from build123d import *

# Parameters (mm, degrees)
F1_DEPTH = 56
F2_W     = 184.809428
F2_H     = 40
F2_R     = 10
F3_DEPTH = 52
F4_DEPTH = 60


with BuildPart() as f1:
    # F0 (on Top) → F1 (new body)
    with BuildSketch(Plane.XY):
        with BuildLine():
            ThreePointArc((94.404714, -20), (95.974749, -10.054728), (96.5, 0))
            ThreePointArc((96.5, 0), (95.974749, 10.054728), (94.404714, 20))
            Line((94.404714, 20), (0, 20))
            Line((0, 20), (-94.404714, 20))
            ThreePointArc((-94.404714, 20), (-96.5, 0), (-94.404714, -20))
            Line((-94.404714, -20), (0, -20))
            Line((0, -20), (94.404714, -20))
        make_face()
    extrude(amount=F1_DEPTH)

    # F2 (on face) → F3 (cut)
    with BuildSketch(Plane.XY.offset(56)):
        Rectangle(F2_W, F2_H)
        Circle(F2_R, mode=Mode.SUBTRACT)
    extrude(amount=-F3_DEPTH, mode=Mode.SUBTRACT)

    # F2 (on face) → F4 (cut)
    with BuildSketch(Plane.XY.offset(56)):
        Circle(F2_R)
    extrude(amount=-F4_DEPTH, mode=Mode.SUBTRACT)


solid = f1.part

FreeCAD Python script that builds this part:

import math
import FreeCAD as App
import Part
import Sketcher
from FreeCAD import Vector
Q = App.Units.Quantity


def add_polygon(sketch, points):
    """Adds a closed chain of lines whose ends are joined by coincident constraints."""
    first, n = sketch.GeometryCount, len(points)
    for a, b in zip(points, points[1:] + points[:1]):
        sketch.addGeometry(Part.LineSegment(App.Vector(*a, 0), App.Vector(*b, 0)), False)
    for i in range(n):
        sketch.addConstraint(Sketcher.Constraint("Coincident", first + i, 2, first + (i + 1) % n, 1))

doc = App.newDocument("Part")
body = doc.addObject("PartDesign::Body", "Body")

# Sketch on XY plane
sketch1 = doc.addObject("Sketcher::SketchObject", "Sketch")
body.addObject(sketch1)
sketch1.AttachmentSupport = (doc.XY_Plane, [""])
sketch1.MapMode = "FlatFace"
sketch1.addGeometry(Part.ArcOfCircle(Part.Circle(Vector(-0.000011, 0.000001, 0), Vector(0, 0, 1), 96.500011), math.radians(-11.96147), math.radians(0)), False)
sketch1.addGeometry(Part.ArcOfCircle(Part.Circle(Vector(-0.000011, -0.000001, 0), Vector(0, 0, 1), 96.500011), math.radians(0), math.radians(11.96147)), False)
sketch1.addGeometry(Part.LineSegment(Vector(94.404714, 20, 0), Vector(-94.404714, 20, 0)), False)
sketch1.addGeometry(Part.ArcOfCircle(Part.Circle(Vector(0.000006, 0, 0), Vector(0, 0, 1), 96.500006), math.radians(168.038529), math.radians(191.961471)), False)
sketch1.addGeometry(Part.LineSegment(Vector(-94.404714, -20, 0), Vector(94.404714, -20, 0)), False)
sketch1.addConstraint(Sketcher.Constraint("Coincident", 0, 2, 1, 1))
sketch1.addConstraint(Sketcher.Constraint("Coincident", 1, 2, 2, 1))
sketch1.addConstraint(Sketcher.Constraint("Coincident", 2, 2, 3, 1))
sketch1.addConstraint(Sketcher.Constraint("Coincident", 3, 2, 4, 1))
sketch1.addConstraint(Sketcher.Constraint("Coincident", 4, 2, 0, 1))
sketch1.addConstraint(Sketcher.Constraint("Horizontal", 2))
sketch1.addConstraint(Sketcher.Constraint("Horizontal", 4))
sketch1.addConstraint(Sketcher.Constraint("Coincident", 3, 3, -1, 1))
sketch1.addConstraint(Sketcher.Constraint("Coincident", 1, 3, 0, 3))
sketch1.addConstraint(Sketcher.Constraint("PointOnObject", 0, 3, -1))
sketch1.addConstraint(Sketcher.Constraint("PointOnObject", 0, 2, -1))
sketch1.addConstraint(Sketcher.Constraint("DistanceY", -1, 1, 1, 2, Q("20 mm")))
sketch1.addConstraint(Sketcher.Constraint("DistanceY", 3, 2, -1, 1, Q("20 mm")))
sketch1.addConstraint(Sketcher.Constraint("DistanceX", -1, 1, 0, 2, Q("96.5 mm")))
sketch1.addConstraint(Sketcher.Constraint("Radius", 0, Q("96.500011 mm")))
sketch1.addConstraint(Sketcher.Constraint("Radius", 3, Q("96.500006 mm")))
pad1 = doc.addObject("PartDesign::Pad", "Pad")
body.addObject(pad1)
pad1.Profile = sketch1
pad1.Length = 56

# Sketch on XY plane
sketch2 = doc.addObject("Sketcher::SketchObject", "Sketch001")
body.addObject(sketch2)
sketch2.AttachmentSupport = (doc.XY_Plane, [""])
sketch2.MapMode = "FlatFace"
sketch2.AttachmentOffset = App.Placement(Vector(0, 0, 56), App.Rotation())
add_polygon(sketch2, [(-92.404714, 20), (-92.404714, -20), (92.404714, -20), (92.404714, 20)])  # lines 0-3
sketch2.addGeometry(Part.Circle(Vector(0, 0, 0), Vector(0, 0, 1), 10), False)  # 4
sketch2.addConstraint(Sketcher.Constraint("Vertical", 0))
sketch2.addConstraint(Sketcher.Constraint("Horizontal", 1))
sketch2.addConstraint(Sketcher.Constraint("Vertical", 2))
sketch2.addConstraint(Sketcher.Constraint("Horizontal", 3))
sketch2.addConstraint(Sketcher.Constraint("Coincident", 4, 3, -1, 1))
sketch2.addConstraint(Sketcher.Constraint("Symmetric", 0, 2, 2, 2, -1, 1))
sketch2.addConstraint(Sketcher.Constraint("Diameter", 4, Q("20 mm")))
sketch2.addConstraint(Sketcher.Constraint("DistanceY", 0, 2, 0, 1, Q("40 mm")))
sketch2.addConstraint(Sketcher.Constraint("DistanceX", 1, 1, 1, 2, Q("184.809428 mm")))
pocket1 = doc.addObject("PartDesign::Pocket", "Pocket")
body.addObject(pocket1)
pocket1.Profile = sketch2
pocket1.Length = 52

# Sketch on XY plane
sketch3 = doc.addObject("Sketcher::SketchObject", "Sketch002")
body.addObject(sketch3)
sketch3.AttachmentSupport = (doc.XY_Plane, [""])
sketch3.MapMode = "FlatFace"
sketch3.AttachmentOffset = App.Placement(Vector(0, 0, 56), App.Rotation())
sketch3.addGeometry(Part.Circle(Vector(0, 0, 0), Vector(0, 0, 1), 10), False)
sketch3.addConstraint(Sketcher.Constraint("Coincident", 0, 3, -1, 1))
sketch3.addConstraint(Sketcher.Constraint("Diameter", 0, Q("20 mm")))
pocket2 = doc.addObject("PartDesign::Pocket", "Pocket001")
body.addObject(pocket2)
pocket2.Profile = sketch3
pocket2.Length = 60

doc.recompute()
